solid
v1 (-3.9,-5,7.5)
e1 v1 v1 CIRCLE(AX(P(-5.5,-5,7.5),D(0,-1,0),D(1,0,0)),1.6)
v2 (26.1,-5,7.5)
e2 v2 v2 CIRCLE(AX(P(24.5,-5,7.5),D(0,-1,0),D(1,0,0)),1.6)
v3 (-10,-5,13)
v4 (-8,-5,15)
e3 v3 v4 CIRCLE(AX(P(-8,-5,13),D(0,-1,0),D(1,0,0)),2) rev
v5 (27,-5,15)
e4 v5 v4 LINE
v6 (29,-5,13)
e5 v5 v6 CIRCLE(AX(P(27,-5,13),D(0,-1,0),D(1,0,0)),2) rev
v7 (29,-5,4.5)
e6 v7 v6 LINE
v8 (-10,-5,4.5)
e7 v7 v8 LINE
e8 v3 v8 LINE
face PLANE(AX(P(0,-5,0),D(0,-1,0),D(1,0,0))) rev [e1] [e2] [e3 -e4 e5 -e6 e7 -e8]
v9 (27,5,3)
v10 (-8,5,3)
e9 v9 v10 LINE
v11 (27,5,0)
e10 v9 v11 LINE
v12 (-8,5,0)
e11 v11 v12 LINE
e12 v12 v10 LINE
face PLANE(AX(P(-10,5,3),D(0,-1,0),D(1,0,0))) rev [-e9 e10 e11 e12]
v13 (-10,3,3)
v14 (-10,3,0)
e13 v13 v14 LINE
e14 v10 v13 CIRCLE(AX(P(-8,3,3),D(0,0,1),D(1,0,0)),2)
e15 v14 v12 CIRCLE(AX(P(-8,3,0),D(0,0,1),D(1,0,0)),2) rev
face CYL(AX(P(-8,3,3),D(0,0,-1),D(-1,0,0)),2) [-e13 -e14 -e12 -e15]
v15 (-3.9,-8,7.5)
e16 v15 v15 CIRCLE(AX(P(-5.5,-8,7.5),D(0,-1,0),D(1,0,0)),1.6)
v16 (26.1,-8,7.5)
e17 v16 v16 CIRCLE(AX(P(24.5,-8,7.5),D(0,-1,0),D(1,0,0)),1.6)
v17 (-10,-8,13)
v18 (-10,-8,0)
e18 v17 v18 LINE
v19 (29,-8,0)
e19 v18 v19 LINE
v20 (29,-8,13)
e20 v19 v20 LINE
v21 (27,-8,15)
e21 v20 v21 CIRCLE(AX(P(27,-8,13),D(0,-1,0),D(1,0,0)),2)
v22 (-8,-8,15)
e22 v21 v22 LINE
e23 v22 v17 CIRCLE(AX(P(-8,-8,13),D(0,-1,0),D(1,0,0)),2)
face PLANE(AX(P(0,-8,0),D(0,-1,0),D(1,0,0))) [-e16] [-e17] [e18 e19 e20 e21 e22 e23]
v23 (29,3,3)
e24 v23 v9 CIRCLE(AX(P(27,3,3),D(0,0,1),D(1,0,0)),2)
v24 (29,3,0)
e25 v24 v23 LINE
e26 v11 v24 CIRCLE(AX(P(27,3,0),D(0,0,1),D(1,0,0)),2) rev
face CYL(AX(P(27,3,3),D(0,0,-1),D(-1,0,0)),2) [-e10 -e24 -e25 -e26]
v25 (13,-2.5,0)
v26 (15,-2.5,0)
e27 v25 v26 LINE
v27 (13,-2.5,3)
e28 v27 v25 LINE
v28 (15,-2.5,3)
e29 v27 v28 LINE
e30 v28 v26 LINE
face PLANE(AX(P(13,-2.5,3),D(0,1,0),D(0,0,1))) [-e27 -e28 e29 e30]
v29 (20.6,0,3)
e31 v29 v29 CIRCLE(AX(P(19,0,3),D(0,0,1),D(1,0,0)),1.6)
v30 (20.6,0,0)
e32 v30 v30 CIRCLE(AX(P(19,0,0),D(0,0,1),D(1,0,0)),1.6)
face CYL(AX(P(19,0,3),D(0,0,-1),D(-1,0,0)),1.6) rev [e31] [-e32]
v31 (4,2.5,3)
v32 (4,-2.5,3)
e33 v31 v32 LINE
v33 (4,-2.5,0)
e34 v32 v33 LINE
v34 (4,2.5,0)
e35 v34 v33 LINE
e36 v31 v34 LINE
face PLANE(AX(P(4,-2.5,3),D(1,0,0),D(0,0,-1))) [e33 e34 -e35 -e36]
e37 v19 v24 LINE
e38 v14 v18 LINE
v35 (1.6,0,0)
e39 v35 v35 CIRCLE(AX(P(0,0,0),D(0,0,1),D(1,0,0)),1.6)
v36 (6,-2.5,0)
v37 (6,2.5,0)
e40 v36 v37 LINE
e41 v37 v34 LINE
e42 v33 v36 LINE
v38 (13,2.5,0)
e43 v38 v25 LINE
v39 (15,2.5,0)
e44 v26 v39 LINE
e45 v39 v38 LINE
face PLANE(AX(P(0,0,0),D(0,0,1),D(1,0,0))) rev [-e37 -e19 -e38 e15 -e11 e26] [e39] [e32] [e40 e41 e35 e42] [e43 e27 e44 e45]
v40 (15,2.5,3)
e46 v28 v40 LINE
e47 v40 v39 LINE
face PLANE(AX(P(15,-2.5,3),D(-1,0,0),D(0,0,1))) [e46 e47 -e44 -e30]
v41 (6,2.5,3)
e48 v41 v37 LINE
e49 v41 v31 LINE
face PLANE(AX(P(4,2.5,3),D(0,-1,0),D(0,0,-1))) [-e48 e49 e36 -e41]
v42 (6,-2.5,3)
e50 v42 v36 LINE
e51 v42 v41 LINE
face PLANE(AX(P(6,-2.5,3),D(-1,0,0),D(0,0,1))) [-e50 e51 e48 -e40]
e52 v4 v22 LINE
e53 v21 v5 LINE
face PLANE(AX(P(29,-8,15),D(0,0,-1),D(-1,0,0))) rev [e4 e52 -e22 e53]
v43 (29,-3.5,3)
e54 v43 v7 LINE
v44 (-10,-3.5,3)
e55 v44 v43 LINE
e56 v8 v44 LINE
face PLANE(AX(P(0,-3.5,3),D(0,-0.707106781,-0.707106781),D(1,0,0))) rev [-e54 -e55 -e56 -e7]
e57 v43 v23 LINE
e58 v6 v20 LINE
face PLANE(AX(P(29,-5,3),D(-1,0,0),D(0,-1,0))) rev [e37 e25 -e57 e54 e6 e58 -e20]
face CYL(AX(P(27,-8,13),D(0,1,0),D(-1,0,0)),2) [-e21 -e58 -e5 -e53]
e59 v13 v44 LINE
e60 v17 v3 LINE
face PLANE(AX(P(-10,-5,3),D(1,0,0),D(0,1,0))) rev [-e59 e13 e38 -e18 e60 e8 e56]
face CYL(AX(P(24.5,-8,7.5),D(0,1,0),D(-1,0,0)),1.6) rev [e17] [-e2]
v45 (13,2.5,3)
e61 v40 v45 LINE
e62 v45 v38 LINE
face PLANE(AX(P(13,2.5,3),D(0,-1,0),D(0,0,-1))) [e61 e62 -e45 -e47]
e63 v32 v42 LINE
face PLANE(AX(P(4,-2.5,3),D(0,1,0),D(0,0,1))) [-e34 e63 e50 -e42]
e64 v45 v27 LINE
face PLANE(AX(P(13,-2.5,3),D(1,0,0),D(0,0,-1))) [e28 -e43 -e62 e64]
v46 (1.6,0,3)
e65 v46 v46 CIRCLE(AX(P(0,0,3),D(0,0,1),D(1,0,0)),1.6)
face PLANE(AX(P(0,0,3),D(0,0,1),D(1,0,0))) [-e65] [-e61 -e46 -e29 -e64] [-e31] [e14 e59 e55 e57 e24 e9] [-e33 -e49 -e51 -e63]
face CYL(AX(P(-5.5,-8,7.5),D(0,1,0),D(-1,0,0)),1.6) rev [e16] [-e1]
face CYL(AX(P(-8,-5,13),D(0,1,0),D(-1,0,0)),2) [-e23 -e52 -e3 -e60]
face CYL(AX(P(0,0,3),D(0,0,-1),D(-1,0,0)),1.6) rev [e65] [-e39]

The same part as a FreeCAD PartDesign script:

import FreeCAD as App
import Part
import Sketcher

V = App.Vector
Q = App.Units.Quantity


def edges_at(feature, points):
    """Names of the edges that pass closest to the given points."""
    edges = feature.Shape.Edges
    near = lambda p: min(range(len(edges)), key=lambda i: edges[i].distToShape(Part.Vertex(*p))[0])
    return sorted({f"Edge{near(p) + 1}" for p in points})

doc = App.newDocument("Part")
body = doc.addObject("PartDesign::Body", "Body")

# Sketch on XY plane
sketch1 = doc.addObject("Sketcher::SketchObject", "Sketch")
body.addObject(sketch1)
sketch1.AttachmentSupport = (doc.XY_Plane, [""])
sketch1.MapMode = "FlatFace"
sketch1.addGeometry(Part.LineSegment(V(-10, 5, 0), V(-10, -5, 0)), False)
sketch1.addGeometry(Part.LineSegment(V(-10, -5, 0), V(29, -5, 0)), False)
sketch1.addGeometry(Part.LineSegment(V(29, -5, 0), V(29, 5, 0)), False)
sketch1.addGeometry(Part.LineSegment(V(29, 5, 0), V(-10, 5, 0)), False)
sketch1.addGeometry(Part.Circle(V(0, 0, 0), V(0, 0, 1), 1.6), False)
sketch1.addGeometry(Part.LineSegment(V(6, -2.5, 0), V(4, -2.5, 0)), False)
sketch1.addGeometry(Part.LineSegment(V(4, -2.5, 0), V(4, 2.5, 0)), False)
sketch1.addGeometry(Part.LineSegment(V(4, 2.5, 0), V(6, 2.5, 0)), False)
sketch1.addGeometry(Part.LineSegment(V(6, 2.5, 0), V(6, -2.5, 0)), False)
sketch1.addGeometry(Part.LineSegment(V(15, -2.5, 0), V(13, -2.5, 0)), False)
sketch1.addGeometry(Part.LineSegment(V(13, -2.5, 0), V(13, 2.5, 0)), False)
sketch1.addGeometry(Part.LineSegment(V(13, 2.5, 0), V(15, 2.5, 0)), False)
sketch1.addGeometry(Part.LineSegment(V(15, 2.5, 0), V(15, -2.5, 0)), False)
sketch1.addGeometry(Part.Circle(V(19, 0, 0), V(0, 0, 1), 1.6), False)
sketch1.addConstraint(Sketcher.Constraint("Coincident", 0, 2, 1, 1))
sketch1.addConstraint(Sketcher.Constraint("Coincident", 1, 2, 2, 1))
sketch1.addConstraint(Sketcher.Constraint("Coincident", 2, 2, 3, 1))
sketch1.addConstraint(Sketcher.Constraint("Coincident", 3, 2, 0, 1))
sketch1.addConstraint(Sketcher.Constraint("Coincident", 5, 2, 6, 1))
sketch1.addConstraint(Sketcher.Constraint("Coincident", 6, 2, 7, 1))
sketch1.addConstraint(Sketcher.Constraint("Coincident", 7, 2, 8, 1))
sketch1.addConstraint(Sketcher.Constraint("Coincident", 8, 2, 5, 1))
sketch1.addConstraint(Sketcher.Constraint("Coincident", 9, 2, 10, 1))
sketch1.addConstraint(Sketcher.Constraint("Coincident", 10, 2, 11, 1))
sketch1.addConstraint(Sketcher.Constraint("Coincident", 11, 2, 12, 1))
sketch1.addConstraint(Sketcher.Constraint("Coincident", 12, 2, 9, 1))
sketch1.addConstraint(Sketcher.Constraint("Vertical", 0))
sketch1.addConstraint(Sketcher.Constraint("Horizontal", 1))
sketch1.addConstraint(Sketcher.Constraint("Vertical", 2))
sketch1.addConstraint(Sketcher.Constraint("Horizontal", 3))
sketch1.addConstraint(Sketcher.Constraint("Horizontal", 5))
sketch1.addConstraint(Sketcher.Constraint("Vertical", 6))
sketch1.addConstraint(Sketcher.Constraint("Horizontal", 7))
sketch1.addConstraint(Sketcher.Constraint("Vertical", 8))
sketch1.addConstraint(Sketcher.Constraint("Horizontal", 9))
sketch1.addConstraint(Sketcher.Constraint("Vertical", 10))
sketch1.addConstraint(Sketcher.Constraint("Horizontal", 11))
sketch1.addConstraint(Sketcher.Constraint("Vertical", 12))
sketch1.addConstraint(Sketcher.Constraint("Coincident", 4, 3, -1, 1))
sketch1.addConstraint(Sketcher.Constraint("Equal", 4, 13))
sketch1.addConstraint(Sketcher.Constraint("PointOnObject", 13, 3, -1))
sketch1.addConstraint(Sketcher.Constraint("Horizontal", 8, 2, 9, 2))
sketch1.addConstraint(Sketcher.Constraint("Horizontal", 7, 2, 10, 2))
sketch1.addConstraint(Sketcher.Constraint("Equal", 7, 9))
sketch1.addConstraint(Sketcher.Constraint("Diameter", 4, Q("3.2 mm")))
sketch1.addConstraint(Sketcher.Constraint("DistanceX", 1, 1, 1, 2, Q("39 mm")))
sketch1.addConstraint(Sketcher.Constraint("DistanceX", 5, 2, 5, 1, Q("2 mm")))
sketch1.addConstraint(Sketcher.Constraint("DistanceY", 0, 2, 0, 1, Q("10 mm")))
sketch1.addConstraint(Sketcher.Constraint("DistanceY", 6, 1, 6, 2, Q("5 mm")))
sketch1.addConstraint(Sketcher.Constraint("DistanceX", -1, 1, 13, 3, Q("19 mm")))
sketch1.addConstraint(Sketcher.Constraint("DistanceX", 0, 2, -1, 1, Q("10 mm")))
sketch1.addConstraint(Sketcher.Constraint("DistanceY", 0, 2, -1, 1, Q("5 mm")))
sketch1.addConstraint(Sketcher.Constraint("DistanceX", -1, 1, 5, 2, Q("4 mm")))
sketch1.addConstraint(Sketcher.Constraint("DistanceX", -1, 1, 9, 2, Q("13 mm")))
sketch1.addConstraint(Sketcher.Constraint("DistanceY", 5, 2, -1, 1, Q("2.5 mm")))
pad1 = doc.addObject("PartDesign::Pad", "Pad")
body.addObject(pad1)
pad1.Profile = sketch1
pad1.Length = 3

# Sketch on XZ plane
sketch2 = doc.addObject("Sketcher::SketchObject", "Sketch001")
body.addObject(sketch2)
sketch2.AttachmentSupport = (doc.XZ_Plane, [""])
sketch2.MapMode = "FlatFace"
sketch2.AttachmentOffset = App.Placement(V(0, 0, 5), App.Rotation())
sketch2.addGeometry(Part.LineSegment(V(-10, 15, 0), V(-10, 0, 0)), False)
sketch2.addGeometry(Part.LineSegment(V(-10, 0, 0), V(29, 0, 0)), False)
sketch2.addGeometry(Part.LineSegment(V(29, 0, 0), V(29, 15, 0)), False)
sketch2.addGeometry(Part.LineSegment(V(29, 15, 0), V(-10, 15, 0)), False)
sketch2.addGeometry(Part.Circle(V(-5.5, 7.5, 0), V(0, 0, 1), 1.6), False)
sketch2.addGeometry(Part.Circle(V(24.5, 7.5, 0), V(0, 0, 1), 1.6), False)
sketch2.addConstraint(Sketcher.Constraint("Coincident", 0, 2, 1, 1))
sketch2.addConstraint(Sketcher.Constraint("Coincident", 1, 2, 2, 1))
sketch2.addConstraint(Sketcher.Constraint("Coincident", 2, 2, 3, 1))
sketch2.addConstraint(Sketcher.Constraint("Coincident", 3, 2, 0, 1))
sketch2.addConstraint(Sketcher.Constraint("Vertical", 0))
sketch2.addConstraint(Sketcher.Constraint("Horizontal", 1))
sketch2.addConstraint(Sketcher.Constraint("Vertical", 2))
sketch2.addConstraint(Sketcher.Constraint("Horizontal", 3))
sketch2.addConstraint(Sketcher.Constraint("Equal", 4, 5))
sketch2.addConstraint(Sketcher.Constraint("PointOnObject", 0, 2, -1))
sketch2.addConstraint(Sketcher.Constraint("Horizontal", 4, 3, 5, 3))
sketch2.addConstraint(Sketcher.Constraint("Diameter", 4, Q("3.2 mm")))
sketch2.addConstraint(Sketcher.Constraint("DistanceX", 1, 1, 1, 2, Q("39 mm")))
sketch2.addConstraint(Sketcher.Constraint("DistanceY", 0, 2, 0, 1, Q("15 mm")))
sketch2.addConstraint(Sketcher.Constraint("DistanceX", 0, 2, -1, 1, Q("10 mm")))
sketch2.addConstraint(Sketcher.Constraint("DistanceX", 4, 3, 5, 3, Q("30 mm")))
sketch2.addConstraint(Sketcher.Constraint("DistanceX", 4, 3, -1, 1, Q("5.5 mm")))
sketch2.addConstraint(Sketcher.Constraint("DistanceY", -1, 1, 4, 3, Q("7.5 mm")))
pad2 = doc.addObject("PartDesign::Pad", "Pad001")
body.addObject(pad2)
pad2.Profile = sketch2
pad2.Length = 3
doc.recompute()

chamfer = doc.addObject("PartDesign::Chamfer", "Chamfer")
body.addObject(chamfer)
chamfer.Base = (pad2, edges_at(pad2, [(9.5, -5, 3)]))
chamfer.Size = 1.5
doc.recompute()

fillet = doc.addObject("PartDesign::Fillet", "Fillet")
body.addObject(fillet)
fillet.Base = (chamfer, edges_at(chamfer, [
    (29, -6.5, 15),
    (-10, -6.5, 15),
    (29, 5, 1.5),
    (-10, 5, 1.5),
]))
fillet.Radius = 2

doc.recompute()
